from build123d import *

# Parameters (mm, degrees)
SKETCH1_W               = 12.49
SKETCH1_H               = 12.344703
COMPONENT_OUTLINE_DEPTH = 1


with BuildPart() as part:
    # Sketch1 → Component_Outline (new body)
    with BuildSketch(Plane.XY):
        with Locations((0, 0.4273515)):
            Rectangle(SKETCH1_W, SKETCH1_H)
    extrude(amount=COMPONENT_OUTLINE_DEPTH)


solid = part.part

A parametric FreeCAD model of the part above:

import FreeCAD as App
import Part
import Sketcher
from FreeCAD import Vector

doc = App.newDocument("Part")
body = doc.addObject("PartDesign::Body", "Body")

# Sketch on XY plane
sketch1 = body.newObject("Sketcher::SketchObject", "Sketch")
sketch1.AttachmentSupport = (doc.getObject("XY_Plane"), [""])
sketch1.MapMode = "FlatFace"
sketch1.addGeometry(Part.LineSegment(Vector(-6, 7, 0), Vector(-6, -6, 0)), False)
sketch1.addGeometry(Part.LineSegment(Vector(-6, -6, 0), Vector(6, -6, 0)), False)
sketch1.addGeometry(Part.LineSegment(Vector(6, -6, 0), Vector(6, 7, 0)), False)
sketch1.addGeometry(Part.LineSegment(Vector(6, 7, 0), Vector(-6, 7, 0)), False)
sketch1.addConstraint(Sketcher.Constraint("Coincident", 0, 2, 1, 1))
sketch1.addConstraint(Sketcher.Constraint("Coincident", 1, 2, 2, 1))
sketch1.addConstraint(Sketcher.Constraint("Coincident", 2, 2, 3, 1))
sketch1.addConstraint(Sketcher.Constraint("Coincident", 3, 2, 0, 1))
sketch1.addConstraint(Sketcher.Constraint("Vertical", 0))
sketch1.addConstraint(Sketcher.Constraint("Horizontal", 1))
sketch1.addConstraint(Sketcher.Constraint("Vertical", 2))
sketch1.addConstraint(Sketcher.Constraint("Horizontal", 3))
sketch1.addConstraint(Sketcher.Constraint("DistanceX", 1, 1, 1, 2, 12.49))
sketch1.addConstraint(Sketcher.Constraint("DistanceX", 0, 2, -1, 1, 6.245))
sketch1.addConstraint(Sketcher.Constraint("DistanceY", 0, 2, -1, 1, 5.745))
sketch1.addConstraint(Sketcher.Constraint("DistanceY", 0, 2, 0, 1, 12.344703))
pad1 = body.newObject("PartDesign::Pad", "Pad")
pad1.Profile = sketch1
pad1.Length = 1

doc.recompute()
